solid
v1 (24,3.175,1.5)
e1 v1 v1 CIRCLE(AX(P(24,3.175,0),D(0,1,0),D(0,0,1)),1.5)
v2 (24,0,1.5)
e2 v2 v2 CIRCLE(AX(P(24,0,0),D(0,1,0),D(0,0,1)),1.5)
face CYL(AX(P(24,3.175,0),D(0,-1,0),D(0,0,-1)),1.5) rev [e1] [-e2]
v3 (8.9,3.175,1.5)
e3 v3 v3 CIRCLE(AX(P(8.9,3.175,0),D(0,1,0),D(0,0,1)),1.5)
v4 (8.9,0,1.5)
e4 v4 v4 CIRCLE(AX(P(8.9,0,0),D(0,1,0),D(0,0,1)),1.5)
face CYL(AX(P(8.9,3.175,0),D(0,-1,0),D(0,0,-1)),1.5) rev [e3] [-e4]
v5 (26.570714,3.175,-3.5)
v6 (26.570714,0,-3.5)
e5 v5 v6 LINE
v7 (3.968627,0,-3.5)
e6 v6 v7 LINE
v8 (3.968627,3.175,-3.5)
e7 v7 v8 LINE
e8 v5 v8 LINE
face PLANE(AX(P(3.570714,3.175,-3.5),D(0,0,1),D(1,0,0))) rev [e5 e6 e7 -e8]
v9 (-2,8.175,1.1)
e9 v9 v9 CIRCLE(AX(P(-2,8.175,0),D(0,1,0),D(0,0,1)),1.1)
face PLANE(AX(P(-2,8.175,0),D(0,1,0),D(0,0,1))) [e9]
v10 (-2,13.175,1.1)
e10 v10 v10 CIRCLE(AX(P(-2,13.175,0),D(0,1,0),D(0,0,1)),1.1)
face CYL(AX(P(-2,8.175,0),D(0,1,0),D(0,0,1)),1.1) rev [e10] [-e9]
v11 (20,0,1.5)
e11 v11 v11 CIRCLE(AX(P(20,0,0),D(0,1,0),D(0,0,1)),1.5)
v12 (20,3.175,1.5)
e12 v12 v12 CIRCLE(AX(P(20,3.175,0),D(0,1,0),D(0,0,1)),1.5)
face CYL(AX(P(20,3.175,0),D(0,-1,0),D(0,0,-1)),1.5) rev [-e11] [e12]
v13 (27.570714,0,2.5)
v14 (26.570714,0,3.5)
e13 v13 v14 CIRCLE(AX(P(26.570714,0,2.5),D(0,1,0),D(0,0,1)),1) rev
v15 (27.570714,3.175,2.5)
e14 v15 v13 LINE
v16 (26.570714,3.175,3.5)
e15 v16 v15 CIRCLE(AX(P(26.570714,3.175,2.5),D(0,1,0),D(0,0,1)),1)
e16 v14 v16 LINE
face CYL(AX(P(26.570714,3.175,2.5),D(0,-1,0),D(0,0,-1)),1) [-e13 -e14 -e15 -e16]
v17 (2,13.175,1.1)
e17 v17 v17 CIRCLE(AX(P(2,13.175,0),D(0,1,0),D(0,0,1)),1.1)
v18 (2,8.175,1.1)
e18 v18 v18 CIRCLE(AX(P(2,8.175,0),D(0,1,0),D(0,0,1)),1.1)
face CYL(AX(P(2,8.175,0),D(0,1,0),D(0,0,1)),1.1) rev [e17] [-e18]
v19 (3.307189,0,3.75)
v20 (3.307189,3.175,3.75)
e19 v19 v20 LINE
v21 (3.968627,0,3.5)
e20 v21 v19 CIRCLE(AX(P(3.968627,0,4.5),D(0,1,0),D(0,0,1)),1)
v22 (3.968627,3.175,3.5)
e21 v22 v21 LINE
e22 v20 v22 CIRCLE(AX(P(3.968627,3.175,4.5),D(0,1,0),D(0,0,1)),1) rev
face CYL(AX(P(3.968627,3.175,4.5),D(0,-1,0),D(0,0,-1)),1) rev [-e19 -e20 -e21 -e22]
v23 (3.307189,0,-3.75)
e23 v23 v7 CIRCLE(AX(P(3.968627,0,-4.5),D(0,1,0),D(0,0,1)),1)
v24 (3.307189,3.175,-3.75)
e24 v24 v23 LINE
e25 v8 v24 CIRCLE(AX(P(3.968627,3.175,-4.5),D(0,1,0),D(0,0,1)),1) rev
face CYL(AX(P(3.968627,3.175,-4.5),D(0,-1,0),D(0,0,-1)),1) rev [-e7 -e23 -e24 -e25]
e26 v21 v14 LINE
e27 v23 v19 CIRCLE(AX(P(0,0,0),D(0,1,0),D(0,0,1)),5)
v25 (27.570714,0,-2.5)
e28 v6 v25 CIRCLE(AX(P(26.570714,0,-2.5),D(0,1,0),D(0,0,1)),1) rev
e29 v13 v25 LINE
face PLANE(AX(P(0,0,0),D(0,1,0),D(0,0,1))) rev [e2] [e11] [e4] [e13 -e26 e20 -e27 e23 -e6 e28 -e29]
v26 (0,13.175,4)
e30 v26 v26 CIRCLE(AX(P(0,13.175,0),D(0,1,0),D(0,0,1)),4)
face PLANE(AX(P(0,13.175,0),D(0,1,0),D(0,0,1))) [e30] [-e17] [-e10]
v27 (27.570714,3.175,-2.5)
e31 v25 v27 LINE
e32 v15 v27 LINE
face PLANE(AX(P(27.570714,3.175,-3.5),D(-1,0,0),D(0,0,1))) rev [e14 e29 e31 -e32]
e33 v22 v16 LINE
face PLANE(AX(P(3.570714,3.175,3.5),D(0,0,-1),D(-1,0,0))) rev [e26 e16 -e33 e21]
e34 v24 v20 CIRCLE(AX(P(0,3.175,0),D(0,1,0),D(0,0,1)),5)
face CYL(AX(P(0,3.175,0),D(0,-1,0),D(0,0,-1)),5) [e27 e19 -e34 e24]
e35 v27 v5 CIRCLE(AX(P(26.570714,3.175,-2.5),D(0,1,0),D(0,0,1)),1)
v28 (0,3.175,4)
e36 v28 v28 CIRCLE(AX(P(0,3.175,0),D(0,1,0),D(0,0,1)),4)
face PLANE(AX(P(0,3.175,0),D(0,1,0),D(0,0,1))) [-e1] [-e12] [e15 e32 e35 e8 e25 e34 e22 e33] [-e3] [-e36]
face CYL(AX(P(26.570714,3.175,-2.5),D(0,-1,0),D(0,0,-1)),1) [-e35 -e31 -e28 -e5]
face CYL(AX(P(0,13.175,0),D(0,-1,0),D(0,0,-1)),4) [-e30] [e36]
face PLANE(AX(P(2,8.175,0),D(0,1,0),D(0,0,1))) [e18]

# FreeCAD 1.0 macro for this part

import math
import FreeCAD as App
import Part
import Sketcher

V = App.Vector
Q = App.Units.Quantity


def edges_at(feature, points):
    """Names of the edges that pass closest to the given points."""
    edges = feature.Shape.Edges
    near = lambda p: min(range(len(edges)), key=lambda i: edges[i].distToShape(Part.Vertex(*p))[0])
    return sorted({f"Edge{near(p) + 1}" for p in points})

doc = App.newDocument("Part")
body = doc.addObject("PartDesign::Body", "Body")

sketch1 = body.newObject("Sketcher::SketchObject", "Sketch")
sketch1.AttachmentSupport = (doc.getObject("XZ_Plane"), [""])
sketch1.MapMode = "FlatFace"
sketch1.addGeometry(Part.LineSegment(V(27.6, -3.5, 0), V(3.6, -3.5, 0)), False)
sketch1.addGeometry(Part.ArcOfCircle(Part.Circle(V(0, 0, 0), V(0, 0, 1), 5), math.radians(44), math.radians(316)), False)
sketch1.addGeometry(Part.LineSegment(V(3.6, 3.5, 0), V(27.6, 3.5, 0)), False)
sketch1.addGeometry(Part.LineSegment(V(27.6, 3.5, 0), V(27.6, -3.5, 0)), False)
sketch1.addGeometry(Part.Circle(V(24, 0, 0), V(0, 0, 1), 1.5), False)
sketch1.addGeometry(Part.Circle(V(20, 0, 0), V(0, 0, 1), 1.5), False)
sketch1.addGeometry(Part.Circle(V(8.9, 0, 0), V(0, 0, 1), 1.5), False)
sketch1.addConstraint(Sketcher.Constraint("Coincident", 0, 2, 1, 2))
sketch1.addConstraint(Sketcher.Constraint("Coincident", 1, 1, 2, 1))
sketch1.addConstraint(Sketcher.Constraint("Coincident", 2, 2, 3, 1))
sketch1.addConstraint(Sketcher.Constraint("Coincident", 3, 2, 0, 1))
sketch1.addConstraint(Sketcher.Constraint("Horizontal", 0))
sketch1.addConstraint(Sketcher.Constraint("Horizontal", 2))
sketch1.addConstraint(Sketcher.Constraint("Vertical", 3))
sketch1.addConstraint(Sketcher.Constraint("Coincident", 1, 3, -1, 1))
sketch1.addConstraint(Sketcher.Constraint("Equal", 4, 5))
sketch1.addConstraint(Sketcher.Constraint("Equal", 5, 6))
sketch1.addConstraint(Sketcher.Constraint("PointOnObject", 4, 3, -1))
sketch1.addConstraint(Sketcher.Constraint("PointOnObject", 5, 3, -1))
sketch1.addConstraint(Sketcher.Constraint("PointOnObject", 6, 3, -1))
sketch1.addConstraint(Sketcher.Constraint("Vertical", 0, 2, 1, 1))
sketch1.addConstraint(Sketcher.Constraint("Diameter", 4, Q("3 mm")))
sketch1.addConstraint(Sketcher.Constraint("Radius", 1, Q("5 mm")))
sketch1.addConstraint(Sketcher.Constraint("DistanceX", 0, 2, 0, 1, Q("24 mm")))
sketch1.addConstraint(Sketcher.Constraint("DistanceY", 3, 2, 3, 1, Q("7 mm")))
sketch1.addConstraint(Sketcher.Constraint("DistanceX", -1, 1, 4, 3, Q("24 mm")))
sketch1.addConstraint(Sketcher.Constraint("DistanceX", -1, 1, 5, 3, Q("20 mm")))
sketch1.addConstraint(Sketcher.Constraint("DistanceX", -1, 1, 6, 3, Q("8.9 mm")))
pad1 = body.newObject("PartDesign::Pad", "Pad")
pad1.Profile = sketch1
pad1.Length = 3.175
pad1.Reversed = True

sketch2 = body.newObject("Sketcher::SketchObject", "Sketch001")
sketch2.AttachmentSupport = (doc.getObject("XZ_Plane"), [""])
sketch2.MapMode = "FlatFace"
sketch2.AttachmentOffset = App.Placement(V(0, 0, -3.175), App.Rotation())
sketch2.addGeometry(Part.Circle(V(0, 0, 0), V(0, 0, 1), 4), False)
sketch2.addConstraint(Sketcher.Constraint("Coincident", 0, 3, -1, 1))
sketch2.addConstraint(Sketcher.Constraint("Diameter", 0, Q("8 mm")))
pad2 = body.newObject("PartDesign::Pad", "Pad001")
pad2.Profile = sketch2
pad2.Length = 10
pad2.Reversed = True
doc.recompute()

fillet = body.newObject("PartDesign::Fillet", "Fillet")
fillet.Base = (pad2, edges_at(pad2, [
    (27.571, 1.587, 3.5),
    (3.571, 1.587, 3.5),
    (3.571, 1.587, -3.5),
    (27.571, 1.587, -3.5),
]))
fillet.Radius = 1

sketch3 = body.newObject("Sketcher::SketchObject", "Sketch002")
sketch3.AttachmentSupport = (doc.getObject("XZ_Plane"), [""])
sketch3.MapMode = "FlatFace"
sketch3.AttachmentOffset = App.Placement(V(0, 0, -13.175), App.Rotation())
sketch3.addGeometry(Part.Circle(V(2, 0, 0), V(0, 0, 1), 1.1), False)
sketch3.addGeometry(Part.Circle(V(-2, 0, 0), V(0, 0, 1), 1.1), False)
sketch3.addConstraint(Sketcher.Constraint("Equal", 0, 1))
sketch3.addConstraint(Sketcher.Constraint("Symmetric", 0, 3, 1, 3, -1, 1))
sketch3.addConstraint(Sketcher.Constraint("PointOnObject", 0, 3, -1))
sketch3.addConstraint(Sketcher.Constraint("Diameter", 0, Q("2.2 mm")))
sketch3.addConstraint(Sketcher.Constraint("DistanceX", -1, 1, 0, 3, Q("2 mm")))
pocket1 = body.newObject("PartDesign::Pocket", "Pocket")
pocket1.Profile = sketch3
pocket1.Length = 5
pocket1.Reversed = True

doc.recompute()
